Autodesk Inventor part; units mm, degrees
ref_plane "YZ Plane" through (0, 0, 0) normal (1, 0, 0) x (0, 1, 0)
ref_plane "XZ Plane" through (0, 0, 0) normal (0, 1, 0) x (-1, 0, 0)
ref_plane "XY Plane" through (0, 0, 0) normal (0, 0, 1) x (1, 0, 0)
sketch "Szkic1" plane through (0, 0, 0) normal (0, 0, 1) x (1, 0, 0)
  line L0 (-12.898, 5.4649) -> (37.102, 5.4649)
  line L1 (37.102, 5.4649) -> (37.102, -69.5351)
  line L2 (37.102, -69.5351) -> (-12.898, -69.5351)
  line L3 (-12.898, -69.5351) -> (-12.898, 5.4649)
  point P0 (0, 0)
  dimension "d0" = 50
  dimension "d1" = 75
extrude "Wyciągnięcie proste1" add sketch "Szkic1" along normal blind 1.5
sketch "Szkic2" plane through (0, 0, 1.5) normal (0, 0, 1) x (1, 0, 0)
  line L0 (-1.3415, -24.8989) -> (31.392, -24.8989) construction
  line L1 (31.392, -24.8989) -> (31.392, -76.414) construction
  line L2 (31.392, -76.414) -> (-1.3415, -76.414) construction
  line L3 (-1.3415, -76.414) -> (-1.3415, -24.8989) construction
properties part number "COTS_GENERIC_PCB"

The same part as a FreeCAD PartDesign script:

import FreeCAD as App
import Part
import Sketcher
from FreeCAD import Vector
Q = App.Units.Quantity

doc = App.newDocument("Part")
body = doc.addObject("PartDesign::Body", "Body")

# Sketch on XY plane
sketch1 = body.newObject("Sketcher::SketchObject", "Sketch")
sketch1.AttachmentSupport = (doc.getObject("XY_Plane"), [""])
sketch1.MapMode = "FlatFace"
sketch1.addGeometry(Part.LineSegment(Vector(37.102, 5.4649, 0), Vector(-12.898, 5.4649, 0)), False)
sketch1.addGeometry(Part.LineSegment(Vector(-12.898, 5.4649, 0), Vector(-12.898, -69.5351, 0)), False)
sketch1.addGeometry(Part.LineSegment(Vector(-12.898, -69.5351, 0), Vector(37.102, -69.5351, 0)), False)
sketch1.addGeometry(Part.LineSegment(Vector(37.102, -69.5351, 0), Vector(37.102, 5.4649, 0)), False)
sketch1.addConstraint(Sketcher.Constraint("Coincident", 0, 2, 1, 1))
sketch1.addConstraint(Sketcher.Constraint("Coincident", 1, 2, 2, 1))
sketch1.addConstraint(Sketcher.Constraint("Coincident", 2, 2, 3, 1))
sketch1.addConstraint(Sketcher.Constraint("Coincident", 3, 2, 0, 1))
sketch1.addConstraint(Sketcher.Constraint("Horizontal", 0))
sketch1.addConstraint(Sketcher.Constraint("Vertical", 1))
sketch1.addConstraint(Sketcher.Constraint("Horizontal", 2))
sketch1.addConstraint(Sketcher.Constraint("Vertical", 3))
sketch1.addConstraint(Sketcher.Constraint("DistanceX", 0, 2, 0, 1, Q("50 mm")))
sketch1.addConstraint(Sketcher.Constraint("DistanceY", 1, 2, 1, 1, Q("75 mm")))
sketch1.addConstraint(Sketcher.Constraint("DistanceX", 0, 2, -1, 1, Q("12.898 mm")))
sketch1.addConstraint(Sketcher.Constraint("DistanceY", -1, 1, 0, 2, Q("5.465 mm")))
pad1 = body.newObject("PartDesign::Pad", "Pad")
pad1.Profile = sketch1
pad1.Length = 1.5

doc.recompute()
